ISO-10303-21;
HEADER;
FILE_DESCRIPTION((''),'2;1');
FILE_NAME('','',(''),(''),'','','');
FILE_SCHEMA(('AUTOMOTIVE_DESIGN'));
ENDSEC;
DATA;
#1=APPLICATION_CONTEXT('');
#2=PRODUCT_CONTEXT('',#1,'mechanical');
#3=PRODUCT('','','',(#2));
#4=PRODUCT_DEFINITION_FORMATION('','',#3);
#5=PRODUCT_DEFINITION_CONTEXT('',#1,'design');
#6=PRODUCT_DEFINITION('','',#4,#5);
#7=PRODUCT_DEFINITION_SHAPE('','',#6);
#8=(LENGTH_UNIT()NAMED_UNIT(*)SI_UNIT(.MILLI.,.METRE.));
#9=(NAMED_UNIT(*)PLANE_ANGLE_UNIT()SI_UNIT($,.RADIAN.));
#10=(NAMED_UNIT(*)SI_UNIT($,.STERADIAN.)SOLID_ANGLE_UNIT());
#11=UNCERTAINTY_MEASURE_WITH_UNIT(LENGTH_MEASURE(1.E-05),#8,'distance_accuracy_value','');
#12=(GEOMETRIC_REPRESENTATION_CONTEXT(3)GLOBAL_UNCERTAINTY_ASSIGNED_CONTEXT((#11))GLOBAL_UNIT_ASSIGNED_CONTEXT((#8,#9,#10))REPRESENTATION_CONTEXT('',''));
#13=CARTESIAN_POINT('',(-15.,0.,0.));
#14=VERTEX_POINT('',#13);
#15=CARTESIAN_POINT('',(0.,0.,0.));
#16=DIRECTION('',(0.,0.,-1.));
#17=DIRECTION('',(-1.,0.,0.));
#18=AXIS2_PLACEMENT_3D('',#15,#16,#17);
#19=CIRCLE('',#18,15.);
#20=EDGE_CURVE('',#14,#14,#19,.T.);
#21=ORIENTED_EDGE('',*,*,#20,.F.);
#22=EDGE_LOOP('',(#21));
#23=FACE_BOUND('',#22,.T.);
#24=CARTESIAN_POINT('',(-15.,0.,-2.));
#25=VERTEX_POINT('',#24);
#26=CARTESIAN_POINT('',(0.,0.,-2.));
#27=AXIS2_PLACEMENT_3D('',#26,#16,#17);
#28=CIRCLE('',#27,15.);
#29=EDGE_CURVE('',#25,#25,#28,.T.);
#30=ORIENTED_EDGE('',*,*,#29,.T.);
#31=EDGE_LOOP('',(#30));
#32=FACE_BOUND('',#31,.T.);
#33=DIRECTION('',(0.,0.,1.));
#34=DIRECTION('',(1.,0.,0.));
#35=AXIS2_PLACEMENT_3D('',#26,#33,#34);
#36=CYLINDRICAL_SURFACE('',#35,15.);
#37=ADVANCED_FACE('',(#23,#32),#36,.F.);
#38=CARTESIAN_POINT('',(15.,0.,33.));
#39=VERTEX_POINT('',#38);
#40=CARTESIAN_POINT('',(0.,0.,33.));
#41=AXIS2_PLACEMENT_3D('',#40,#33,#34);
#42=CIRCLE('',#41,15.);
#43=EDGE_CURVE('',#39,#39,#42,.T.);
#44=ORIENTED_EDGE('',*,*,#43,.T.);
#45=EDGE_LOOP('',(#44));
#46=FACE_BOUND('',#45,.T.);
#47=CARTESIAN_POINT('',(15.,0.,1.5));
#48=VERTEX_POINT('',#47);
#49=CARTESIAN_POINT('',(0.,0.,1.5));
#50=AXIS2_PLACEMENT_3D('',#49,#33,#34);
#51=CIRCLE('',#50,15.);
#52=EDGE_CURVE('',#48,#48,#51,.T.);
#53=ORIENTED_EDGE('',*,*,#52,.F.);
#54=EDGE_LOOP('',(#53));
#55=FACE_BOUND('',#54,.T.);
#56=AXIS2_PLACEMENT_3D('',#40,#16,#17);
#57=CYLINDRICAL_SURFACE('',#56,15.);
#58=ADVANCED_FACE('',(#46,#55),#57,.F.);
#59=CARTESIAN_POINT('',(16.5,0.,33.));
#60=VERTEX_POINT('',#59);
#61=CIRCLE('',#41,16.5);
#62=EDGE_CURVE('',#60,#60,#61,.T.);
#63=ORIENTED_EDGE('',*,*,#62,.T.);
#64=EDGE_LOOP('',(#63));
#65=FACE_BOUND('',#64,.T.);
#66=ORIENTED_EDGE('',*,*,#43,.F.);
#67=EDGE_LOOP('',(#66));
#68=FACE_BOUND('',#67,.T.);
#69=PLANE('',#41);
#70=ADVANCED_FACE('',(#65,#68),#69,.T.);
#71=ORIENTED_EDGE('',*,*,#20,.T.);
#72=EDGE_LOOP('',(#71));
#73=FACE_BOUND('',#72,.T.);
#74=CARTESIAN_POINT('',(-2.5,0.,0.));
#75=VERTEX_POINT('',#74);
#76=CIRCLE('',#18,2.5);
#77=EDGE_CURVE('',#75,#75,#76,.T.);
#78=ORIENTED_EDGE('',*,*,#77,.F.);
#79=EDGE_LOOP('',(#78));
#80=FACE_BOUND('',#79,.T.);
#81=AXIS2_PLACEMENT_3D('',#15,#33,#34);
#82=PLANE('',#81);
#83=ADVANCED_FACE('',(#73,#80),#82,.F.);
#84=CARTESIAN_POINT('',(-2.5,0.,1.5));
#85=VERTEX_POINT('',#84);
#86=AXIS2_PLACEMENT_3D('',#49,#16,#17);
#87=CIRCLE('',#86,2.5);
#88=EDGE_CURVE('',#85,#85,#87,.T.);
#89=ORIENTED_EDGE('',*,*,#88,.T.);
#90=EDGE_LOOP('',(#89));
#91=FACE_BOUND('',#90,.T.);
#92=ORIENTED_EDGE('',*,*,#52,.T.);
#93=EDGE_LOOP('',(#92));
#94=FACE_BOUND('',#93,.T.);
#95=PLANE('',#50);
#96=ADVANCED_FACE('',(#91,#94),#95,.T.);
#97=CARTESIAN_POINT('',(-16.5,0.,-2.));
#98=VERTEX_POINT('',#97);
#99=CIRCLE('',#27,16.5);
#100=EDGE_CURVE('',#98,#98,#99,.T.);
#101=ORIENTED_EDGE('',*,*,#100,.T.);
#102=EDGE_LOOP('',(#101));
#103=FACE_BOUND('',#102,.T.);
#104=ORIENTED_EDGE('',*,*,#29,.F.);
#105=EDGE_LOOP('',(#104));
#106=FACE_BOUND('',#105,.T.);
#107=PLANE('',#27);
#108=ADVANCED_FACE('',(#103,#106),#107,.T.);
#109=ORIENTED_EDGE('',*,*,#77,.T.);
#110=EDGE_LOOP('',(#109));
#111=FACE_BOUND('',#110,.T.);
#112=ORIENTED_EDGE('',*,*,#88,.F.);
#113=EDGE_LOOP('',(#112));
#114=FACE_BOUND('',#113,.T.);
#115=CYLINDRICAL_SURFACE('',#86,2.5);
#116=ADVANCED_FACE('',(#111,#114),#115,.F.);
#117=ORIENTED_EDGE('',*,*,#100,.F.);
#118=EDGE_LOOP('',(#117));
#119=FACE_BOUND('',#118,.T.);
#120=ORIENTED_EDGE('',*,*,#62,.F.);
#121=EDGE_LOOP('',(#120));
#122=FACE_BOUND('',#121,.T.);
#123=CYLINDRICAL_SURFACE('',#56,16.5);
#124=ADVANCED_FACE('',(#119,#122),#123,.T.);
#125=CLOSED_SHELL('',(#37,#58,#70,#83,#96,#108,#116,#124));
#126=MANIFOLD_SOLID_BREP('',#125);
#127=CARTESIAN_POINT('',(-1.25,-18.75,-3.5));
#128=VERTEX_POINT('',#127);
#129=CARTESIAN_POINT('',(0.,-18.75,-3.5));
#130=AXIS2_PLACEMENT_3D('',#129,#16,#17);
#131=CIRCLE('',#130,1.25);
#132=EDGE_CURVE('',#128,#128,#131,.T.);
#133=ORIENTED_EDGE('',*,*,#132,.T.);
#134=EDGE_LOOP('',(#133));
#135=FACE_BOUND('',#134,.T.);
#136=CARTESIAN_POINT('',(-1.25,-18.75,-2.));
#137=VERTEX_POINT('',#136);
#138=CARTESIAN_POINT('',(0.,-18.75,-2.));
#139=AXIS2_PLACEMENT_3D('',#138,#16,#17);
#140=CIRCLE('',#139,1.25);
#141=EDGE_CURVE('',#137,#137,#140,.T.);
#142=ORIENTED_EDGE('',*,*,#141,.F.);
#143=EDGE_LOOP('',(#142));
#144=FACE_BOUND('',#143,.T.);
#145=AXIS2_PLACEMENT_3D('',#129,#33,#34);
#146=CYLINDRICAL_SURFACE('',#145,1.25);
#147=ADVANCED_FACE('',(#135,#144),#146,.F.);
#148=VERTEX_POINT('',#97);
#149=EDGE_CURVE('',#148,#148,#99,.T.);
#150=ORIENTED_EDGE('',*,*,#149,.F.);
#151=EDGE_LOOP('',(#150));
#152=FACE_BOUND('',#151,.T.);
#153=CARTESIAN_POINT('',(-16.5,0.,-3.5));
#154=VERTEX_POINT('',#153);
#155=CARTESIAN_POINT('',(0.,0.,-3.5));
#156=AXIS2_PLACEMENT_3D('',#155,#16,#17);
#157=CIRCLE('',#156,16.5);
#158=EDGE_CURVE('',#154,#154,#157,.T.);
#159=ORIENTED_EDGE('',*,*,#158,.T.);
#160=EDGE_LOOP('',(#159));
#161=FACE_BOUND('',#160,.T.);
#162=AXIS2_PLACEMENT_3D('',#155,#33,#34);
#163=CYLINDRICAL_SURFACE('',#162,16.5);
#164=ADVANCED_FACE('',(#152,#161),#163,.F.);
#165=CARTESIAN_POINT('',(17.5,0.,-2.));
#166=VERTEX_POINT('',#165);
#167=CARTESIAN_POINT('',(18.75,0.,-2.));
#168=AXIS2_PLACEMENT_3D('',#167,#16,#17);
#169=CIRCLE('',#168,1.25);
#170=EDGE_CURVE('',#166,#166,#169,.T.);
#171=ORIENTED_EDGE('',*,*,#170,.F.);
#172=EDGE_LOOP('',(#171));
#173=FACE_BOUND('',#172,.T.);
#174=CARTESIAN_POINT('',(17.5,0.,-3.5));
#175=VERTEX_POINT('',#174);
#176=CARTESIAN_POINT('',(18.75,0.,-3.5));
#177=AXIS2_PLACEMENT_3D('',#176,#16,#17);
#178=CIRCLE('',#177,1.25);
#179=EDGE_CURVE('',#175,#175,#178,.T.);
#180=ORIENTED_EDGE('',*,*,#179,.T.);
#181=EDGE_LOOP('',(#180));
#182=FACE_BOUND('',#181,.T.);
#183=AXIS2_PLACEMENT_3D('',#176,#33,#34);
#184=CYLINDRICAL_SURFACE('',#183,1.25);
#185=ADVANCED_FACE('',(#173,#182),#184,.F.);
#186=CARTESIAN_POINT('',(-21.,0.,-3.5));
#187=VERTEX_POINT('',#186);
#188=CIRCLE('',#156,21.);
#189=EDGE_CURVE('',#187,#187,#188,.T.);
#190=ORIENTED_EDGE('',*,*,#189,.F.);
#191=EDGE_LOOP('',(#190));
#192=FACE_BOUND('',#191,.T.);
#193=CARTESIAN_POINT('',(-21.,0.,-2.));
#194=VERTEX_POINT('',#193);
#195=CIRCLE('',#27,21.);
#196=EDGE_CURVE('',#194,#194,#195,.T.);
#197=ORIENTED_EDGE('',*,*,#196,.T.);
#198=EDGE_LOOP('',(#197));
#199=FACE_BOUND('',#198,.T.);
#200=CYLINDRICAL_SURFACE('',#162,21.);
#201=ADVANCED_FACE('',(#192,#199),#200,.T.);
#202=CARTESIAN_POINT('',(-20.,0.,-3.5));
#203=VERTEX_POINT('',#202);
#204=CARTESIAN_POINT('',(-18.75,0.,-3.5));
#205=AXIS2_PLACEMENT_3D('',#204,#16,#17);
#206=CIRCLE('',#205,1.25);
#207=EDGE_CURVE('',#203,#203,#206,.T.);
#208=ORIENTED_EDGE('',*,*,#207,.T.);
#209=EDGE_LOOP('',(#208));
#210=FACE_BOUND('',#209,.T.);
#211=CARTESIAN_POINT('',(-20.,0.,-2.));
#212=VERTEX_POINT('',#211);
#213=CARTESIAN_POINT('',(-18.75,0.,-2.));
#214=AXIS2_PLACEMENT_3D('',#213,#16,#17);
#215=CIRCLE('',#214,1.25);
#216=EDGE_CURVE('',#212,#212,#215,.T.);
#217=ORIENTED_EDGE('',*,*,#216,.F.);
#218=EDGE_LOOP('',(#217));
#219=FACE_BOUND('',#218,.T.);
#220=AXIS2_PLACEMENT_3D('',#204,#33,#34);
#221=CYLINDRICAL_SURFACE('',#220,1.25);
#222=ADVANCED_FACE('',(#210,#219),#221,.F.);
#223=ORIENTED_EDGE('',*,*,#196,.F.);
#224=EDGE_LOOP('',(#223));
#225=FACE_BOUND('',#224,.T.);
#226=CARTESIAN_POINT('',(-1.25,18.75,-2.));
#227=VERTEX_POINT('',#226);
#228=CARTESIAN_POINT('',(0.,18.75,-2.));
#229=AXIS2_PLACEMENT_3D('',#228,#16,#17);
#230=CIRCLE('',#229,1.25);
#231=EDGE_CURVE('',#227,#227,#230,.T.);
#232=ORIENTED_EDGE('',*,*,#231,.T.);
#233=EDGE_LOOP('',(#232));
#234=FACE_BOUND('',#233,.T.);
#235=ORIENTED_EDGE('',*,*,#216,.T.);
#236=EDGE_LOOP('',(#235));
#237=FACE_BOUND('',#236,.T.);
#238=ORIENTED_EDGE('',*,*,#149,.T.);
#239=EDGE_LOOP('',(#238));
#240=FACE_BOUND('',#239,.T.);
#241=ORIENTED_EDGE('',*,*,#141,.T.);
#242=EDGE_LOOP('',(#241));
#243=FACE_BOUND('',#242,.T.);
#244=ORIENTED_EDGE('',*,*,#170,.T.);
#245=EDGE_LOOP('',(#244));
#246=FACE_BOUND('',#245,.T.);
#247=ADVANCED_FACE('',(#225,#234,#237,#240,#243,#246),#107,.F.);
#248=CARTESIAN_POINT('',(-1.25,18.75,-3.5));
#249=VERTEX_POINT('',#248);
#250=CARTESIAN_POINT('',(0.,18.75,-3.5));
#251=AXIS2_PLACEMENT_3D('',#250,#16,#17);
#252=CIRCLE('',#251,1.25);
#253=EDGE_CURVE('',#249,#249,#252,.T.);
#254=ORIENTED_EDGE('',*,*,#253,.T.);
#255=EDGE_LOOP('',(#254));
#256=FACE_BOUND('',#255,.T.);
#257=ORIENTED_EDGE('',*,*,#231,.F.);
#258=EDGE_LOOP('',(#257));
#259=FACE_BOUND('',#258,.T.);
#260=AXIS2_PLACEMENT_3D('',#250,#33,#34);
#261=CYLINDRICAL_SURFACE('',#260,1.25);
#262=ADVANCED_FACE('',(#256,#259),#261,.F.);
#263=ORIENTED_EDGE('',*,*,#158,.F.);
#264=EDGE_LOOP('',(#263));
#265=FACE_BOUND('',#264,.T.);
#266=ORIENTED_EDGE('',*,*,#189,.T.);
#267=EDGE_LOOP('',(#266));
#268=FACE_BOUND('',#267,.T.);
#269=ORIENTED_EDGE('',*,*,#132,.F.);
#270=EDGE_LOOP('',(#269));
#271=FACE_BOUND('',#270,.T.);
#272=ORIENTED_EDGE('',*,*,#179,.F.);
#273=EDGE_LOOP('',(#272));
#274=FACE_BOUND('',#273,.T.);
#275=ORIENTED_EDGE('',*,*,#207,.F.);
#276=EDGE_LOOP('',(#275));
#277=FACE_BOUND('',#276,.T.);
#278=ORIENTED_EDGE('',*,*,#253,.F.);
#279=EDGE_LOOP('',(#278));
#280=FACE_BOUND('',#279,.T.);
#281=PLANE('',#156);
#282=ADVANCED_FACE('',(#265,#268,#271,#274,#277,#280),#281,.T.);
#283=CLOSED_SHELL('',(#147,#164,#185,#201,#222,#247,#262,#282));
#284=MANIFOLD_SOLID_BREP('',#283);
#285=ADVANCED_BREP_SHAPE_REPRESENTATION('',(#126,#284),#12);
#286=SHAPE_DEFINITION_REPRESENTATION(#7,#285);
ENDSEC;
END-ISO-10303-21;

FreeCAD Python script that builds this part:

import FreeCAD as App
import Part
import Sketcher
from FreeCAD import Vector
Q = App.Units.Quantity


def faces_at(feature, points):
    """Names of the faces that lie closest to the given points."""
    faces = feature.Shape.Faces
    near = lambda p: min(range(len(faces)), key=lambda i: faces[i].distToShape(Part.Vertex(*p))[0])
    return sorted({f"Face{near(p) + 1}" for p in points})

doc = App.newDocument("Part")
body = doc.addObject("PartDesign::Body", "Body")

# Sketch on XY plane
sketch1 = body.newObject("Sketcher::SketchObject", "Sketch")
sketch1.AttachmentSupport = (doc.getObject("XY_Plane"), [""])
sketch1.MapMode = "FlatFace"
sketch1.addGeometry(Part.Circle(Vector(0, 0, 0), Vector(0, 0, 1), 16), False)
sketch1.addConstraint([
    Sketcher.Constraint("Coincident", 0, 3, -1, 1),
    Sketcher.Constraint("Diameter", 0, Q("33 mm")),
])
pad1 = body.newObject("PartDesign::Pad", "Pad")
pad1.Profile = sketch1
pad1.Length = 33
doc.recompute()

thickness = body.newObject("PartDesign::Thickness", "Thickness")
thickness.Base = (pad1, faces_at(pad1, [(0, 0, 33)]))
thickness.Value = 1.5
thickness.Reversed = True
thickness.Join = "Intersection"

# Sketch on XY plane
sketch2 = body.newObject("Sketcher::SketchObject", "Sketch001")
sketch2.AttachmentSupport = (doc.getObject("XY_Plane"), [""])
sketch2.MapMode = "FlatFace"
sketch2.addGeometry(Part.Circle(Vector(0, 0, 0), Vector(0, 0, 1), 2.5), False)
sketch2.addConstraint([
    Sketcher.Constraint("Coincident", 0, 3, -1, 1),
    Sketcher.Constraint("Diameter", 0, Q("5 mm")),
])
pocket1 = body.newObject("PartDesign::Pocket", "Pocket")
pocket1.Profile = sketch2
pocket1.Length = 1.5
pocket1.Reversed = True

# Sketch on XY plane
sketch3 = body.newObject("Sketcher::SketchObject", "Sketch002")
sketch3.AttachmentSupport = (doc.getObject("XY_Plane"), [""])
sketch3.MapMode = "FlatFace"
sketch3.addGeometry([
    Part.Circle(Vector(0, 0, 0), Vector(0, 0, 1), 16),
    Part.Circle(Vector(0, 0, 0), Vector(0, 0, 1), 15),
], False)
sketch3.addConstraint([
    Sketcher.Constraint("Coincident", 0, 3, -1, 1),
    Sketcher.Constraint("Coincident", 1, 3, -1, 1),
    Sketcher.Constraint("Diameter", 0, Q("33 mm")),
    Sketcher.Constraint("Diameter", 1, Q("30 mm")),
])
pad2 = body.newObject("PartDesign::Pad", "Pad001")
pad2.Profile = sketch3
pad2.Length = 2
pad2.Reversed = True
body2 = doc.addObject("PartDesign::Body", "Body001")

# Sketch on XY plane
sketch4 = body2.newObject("Sketcher::SketchObject", "Sketch003")
sketch4.AttachmentSupport = (doc.getObject("XY_Plane001"), [""])
sketch4.MapMode = "FlatFace"
sketch4.AttachmentOffset = App.Placement(Vector(0, 0, -2), App.Rotation())
sketch4.addGeometry([
    Part.Circle(Vector(0, 0, 0), Vector(0, 0, 1), 21),  # 0
    Part.Circle(Vector(0, -18.8, 0), Vector(0, 0, 1), 1.2),  # 1
    Part.Circle(Vector(18.8, 0, 0), Vector(0, 0, 1), 1.2),  # 2
    Part.Circle(Vector(0, 0, 0), Vector(0, 0, 1), 16.5),  # 3
    Part.Circle(Vector(-18.8, 0, 0), Vector(0, 0, 1), 1.2),  # 4
    Part.Circle(Vector(0, 18.8, 0), Vector(0, 0, 1), 1.2),  # 5
], False)
sketch4.addConstraint([
    Sketcher.Constraint("Coincident", 0, 3, -1, 1),
    Sketcher.Constraint("Coincident", 3, 3, -1, 1),
    Sketcher.Constraint("Equal", 1, 2),
    Sketcher.Constraint("Equal", 2, 4),
    Sketcher.Constraint("Equal", 4, 5),
    Sketcher.Constraint("Symmetric", 2, 3, 4, 3, -1, 1),
    Sketcher.Constraint("Symmetric", 1, 3, 5, 3, -1, 1),
    Sketcher.Constraint("PointOnObject", 1, 3, -2),
    Sketcher.Constraint("PointOnObject", 2, 3, -1),
    Sketcher.Constraint("Diameter", 0, Q("42 mm")),
    Sketcher.Constraint("Diameter", 3, Q("33 mm")),
    Sketcher.Constraint("Diameter", 1, Q("2.5 mm")),
    Sketcher.Constraint("DistanceX", 4, 3, 2, 3, Q("37.5 mm")),
    Sketcher.Constraint("DistanceY", 1, 3, 5, 3, Q("37.5 mm")),
])
pad3 = body2.newObject("PartDesign::Pad", "Pad002")
pad3.Profile = sketch4
pad3.Length = 1.5
pad3.Reversed = True

doc.recompute()
